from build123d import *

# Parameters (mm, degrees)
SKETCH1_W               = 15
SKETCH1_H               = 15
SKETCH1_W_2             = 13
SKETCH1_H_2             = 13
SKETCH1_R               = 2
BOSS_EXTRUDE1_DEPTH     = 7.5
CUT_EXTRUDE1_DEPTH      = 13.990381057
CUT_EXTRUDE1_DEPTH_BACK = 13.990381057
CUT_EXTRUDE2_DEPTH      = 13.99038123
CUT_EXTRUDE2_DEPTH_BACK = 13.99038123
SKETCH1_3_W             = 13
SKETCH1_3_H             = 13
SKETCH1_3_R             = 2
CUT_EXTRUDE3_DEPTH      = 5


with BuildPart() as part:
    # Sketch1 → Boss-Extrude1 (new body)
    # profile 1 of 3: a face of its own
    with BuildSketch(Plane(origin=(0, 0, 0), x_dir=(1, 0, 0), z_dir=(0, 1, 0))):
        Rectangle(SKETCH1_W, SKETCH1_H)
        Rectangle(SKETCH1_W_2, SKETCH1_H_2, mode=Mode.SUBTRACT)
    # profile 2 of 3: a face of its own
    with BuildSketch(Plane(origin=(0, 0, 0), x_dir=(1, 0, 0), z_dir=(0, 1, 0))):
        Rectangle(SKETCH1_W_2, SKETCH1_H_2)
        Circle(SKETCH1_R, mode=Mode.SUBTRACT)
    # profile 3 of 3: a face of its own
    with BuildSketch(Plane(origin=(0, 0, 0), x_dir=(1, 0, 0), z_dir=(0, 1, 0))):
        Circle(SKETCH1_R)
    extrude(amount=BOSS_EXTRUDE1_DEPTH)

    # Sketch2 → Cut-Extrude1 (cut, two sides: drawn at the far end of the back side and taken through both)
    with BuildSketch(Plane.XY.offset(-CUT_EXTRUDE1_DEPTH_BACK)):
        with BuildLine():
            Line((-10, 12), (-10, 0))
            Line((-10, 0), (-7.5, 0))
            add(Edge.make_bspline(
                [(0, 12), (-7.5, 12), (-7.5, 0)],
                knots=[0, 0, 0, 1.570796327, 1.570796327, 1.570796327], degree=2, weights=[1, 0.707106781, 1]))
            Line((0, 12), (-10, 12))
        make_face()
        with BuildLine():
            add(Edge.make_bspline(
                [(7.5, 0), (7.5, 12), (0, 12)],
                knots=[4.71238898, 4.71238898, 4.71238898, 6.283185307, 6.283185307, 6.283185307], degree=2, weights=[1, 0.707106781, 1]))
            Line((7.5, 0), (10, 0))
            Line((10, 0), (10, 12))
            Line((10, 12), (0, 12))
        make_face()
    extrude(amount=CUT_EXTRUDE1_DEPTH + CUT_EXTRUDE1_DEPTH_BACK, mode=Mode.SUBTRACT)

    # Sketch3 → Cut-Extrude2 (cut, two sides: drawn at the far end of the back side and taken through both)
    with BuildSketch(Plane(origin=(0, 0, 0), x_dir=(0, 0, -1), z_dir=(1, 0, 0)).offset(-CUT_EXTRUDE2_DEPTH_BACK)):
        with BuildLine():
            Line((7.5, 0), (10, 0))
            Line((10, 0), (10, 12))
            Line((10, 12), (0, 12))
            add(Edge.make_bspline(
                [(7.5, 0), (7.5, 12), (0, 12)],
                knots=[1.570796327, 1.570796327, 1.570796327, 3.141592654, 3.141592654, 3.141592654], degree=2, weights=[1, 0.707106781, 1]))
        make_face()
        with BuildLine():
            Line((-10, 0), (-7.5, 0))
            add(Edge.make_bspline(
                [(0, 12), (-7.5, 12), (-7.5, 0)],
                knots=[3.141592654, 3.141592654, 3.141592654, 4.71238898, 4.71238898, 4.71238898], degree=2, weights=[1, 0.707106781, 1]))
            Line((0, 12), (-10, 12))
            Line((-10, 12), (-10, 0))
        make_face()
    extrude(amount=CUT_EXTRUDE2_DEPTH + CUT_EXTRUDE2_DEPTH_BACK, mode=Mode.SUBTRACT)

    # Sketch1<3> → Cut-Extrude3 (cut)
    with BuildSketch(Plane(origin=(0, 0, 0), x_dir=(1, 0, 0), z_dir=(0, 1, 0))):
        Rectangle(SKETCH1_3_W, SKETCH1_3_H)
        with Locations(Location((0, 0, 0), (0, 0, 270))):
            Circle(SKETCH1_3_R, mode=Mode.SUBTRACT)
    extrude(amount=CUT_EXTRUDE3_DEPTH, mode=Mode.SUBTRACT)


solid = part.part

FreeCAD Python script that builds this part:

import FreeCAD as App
import Part
import Sketcher

V = App.Vector
Q = App.Units.Quantity


def add_polygon(sketch, points):
    """Adds a closed chain of lines whose ends are joined by coincident constraints."""
    first, n = sketch.GeometryCount, len(points)
    for a, b in zip(points, points[1:] + points[:1]):
        sketch.addGeometry(Part.LineSegment(App.Vector(*a, 0), App.Vector(*b, 0)), False)
    for i in range(n):
        sketch.addConstraint(Sketcher.Constraint("Coincident", first + i, 2, first + (i + 1) % n, 1))

doc = App.newDocument("Part")
body = doc.addObject("PartDesign::Body", "Body")

# Sketch on XZ plane
sketch1 = body.newObject("Sketcher::SketchObject", "Sketch")
sketch1.AttachmentSupport = (doc.getObject("XZ_Plane"), [""])
sketch1.MapMode = "FlatFace"
add_polygon(sketch1, [(-8, -8), (-8, 8), (8, 8), (8, -8)])  # lines 0-3
sketch1.addConstraint(Sketcher.Constraint("Vertical", 0))
sketch1.addConstraint(Sketcher.Constraint("Horizontal", 1))
sketch1.addConstraint(Sketcher.Constraint("Vertical", 2))
sketch1.addConstraint(Sketcher.Constraint("Horizontal", 3))
sketch1.addConstraint(Sketcher.Constraint("Symmetric", 0, 2, 2, 2, -1, 1))
sketch1.addConstraint(Sketcher.Constraint("Equal", 3, 0))
sketch1.addConstraint(Sketcher.Constraint("DistanceX", 1, 1, 1, 2, Q("15 mm")))
pad1 = body.newObject("PartDesign::Pad", "Pad")
pad1.Profile = sketch1
pad1.Length = 7.5
pad1.Reversed = True

# Sketch on XY plane
sketch2 = body.newObject("Sketcher::SketchObject", "Sketch001")
sketch2.AttachmentSupport = (doc.getObject("XY_Plane"), [""])
sketch2.MapMode = "FlatFace"
sketch2.addGeometry(Part.LineSegment(V(-10, 12, 0), V(-10, 0, 0)), False)
sketch2.addGeometry(Part.LineSegment(V(-10, 0, 0), V(-7.5, 0, 0)), False)
sketch2.addGeometry(Part.BSplineCurve([V(0, 12, 0), V(-7.5, 12, 0), V(-7.5, 0, 0)], [3, 3], [0, 1.570796327], False, 2, [1, 0.707106781, 1], False), False)
sketch2.addGeometry(Part.LineSegment(V(0, 12, 0), V(-10, 12, 0)), False)
sketch2.addGeometry(Part.BSplineCurve([V(7.5, 0, 0), V(7.5, 12, 0), V(0, 12, 0)], [3, 3], [4.71238898, 6.283185307], False, 2, [1, 0.707106781, 1], False), False)
sketch2.addGeometry(Part.LineSegment(V(7.5, 0, 0), V(10, 0, 0)), False)
sketch2.addGeometry(Part.LineSegment(V(10, 0, 0), V(10, 12, 0)), False)
sketch2.addGeometry(Part.LineSegment(V(10, 12, 0), V(0, 12, 0)), False)
sketch2.addConstraint(Sketcher.Constraint("Block", 2))
sketch2.addConstraint(Sketcher.Constraint("Block", 4))
sketch2.addConstraint(Sketcher.Constraint("Coincident", 0, 2, 1, 1))
sketch2.addConstraint(Sketcher.Constraint("Coincident", 1, 2, 2, 2))
sketch2.addConstraint(Sketcher.Constraint("Coincident", 2, 1, 3, 1))
sketch2.addConstraint(Sketcher.Constraint("Coincident", 3, 2, 0, 1))
sketch2.addConstraint(Sketcher.Constraint("Coincident", 4, 1, 5, 1))
sketch2.addConstraint(Sketcher.Constraint("Coincident", 5, 2, 6, 1))
sketch2.addConstraint(Sketcher.Constraint("Coincident", 6, 2, 7, 1))
sketch2.addConstraint(Sketcher.Constraint("Coincident", 7, 2, 4, 2))
sketch2.addConstraint(Sketcher.Constraint("Vertical", 0))
sketch2.addConstraint(Sketcher.Constraint("Horizontal", 1))
sketch2.addConstraint(Sketcher.Constraint("Horizontal", 3))
sketch2.addConstraint(Sketcher.Constraint("Horizontal", 5))
sketch2.addConstraint(Sketcher.Constraint("Vertical", 6))
sketch2.addConstraint(Sketcher.Constraint("Horizontal", 7))
sketch2.addConstraint(Sketcher.Constraint("Equal", 1, 5))
sketch2.addConstraint(Sketcher.Constraint("DistanceX", 3, 2, 3, 1, Q("10 mm")))
pocket1 = body.newObject("PartDesign::Pocket", "Pocket")
pocket1.Profile = sketch2
pocket1.Type = "ThroughAll"
pocket1.Midplane = True

# Sketch on YZ plane
sketch3 = body.newObject("Sketcher::SketchObject", "Sketch002")
sketch3.AttachmentSupport = (doc.getObject("YZ_Plane"), [""])
sketch3.MapMode = "FlatFace"
sketch3.addGeometry(Part.LineSegment(V(0, -7.5, 0), V(0, -10, 0)), False)
sketch3.addGeometry(Part.LineSegment(V(0, -10, 0), V(12, -10, 0)), False)
sketch3.addGeometry(Part.LineSegment(V(12, -10, 0), V(12, 0, 0)), False)
sketch3.addGeometry(Part.BSplineCurve([V(0, -7.5, 0), V(12, -7.5, 0), V(12, 0, 0)], [3, 3], [1.570796327, 3.141592654], False, 2, [1, 0.707106781, 1], False), False)
sketch3.addGeometry(Part.LineSegment(V(0, 10, 0), V(0, 7.5, 0)), False)
sketch3.addGeometry(Part.BSplineCurve([V(12, 0, 0), V(12, 7.5, 0), V(0, 7.5, 0)], [3, 3], [3.141592654, 4.71238898], False, 2, [1, 0.707106781, 1], False), False)
sketch3.addGeometry(Part.LineSegment(V(12, 0, 0), V(12, 10, 0)), False)
sketch3.addGeometry(Part.LineSegment(V(12, 10, 0), V(0, 10, 0)), False)
sketch3.addConstraint(Sketcher.Constraint("Block", 3))
sketch3.addConstraint(Sketcher.Constraint("Block", 5))
sketch3.addConstraint(Sketcher.Constraint("Coincident", 0, 2, 1, 1))
sketch3.addConstraint(Sketcher.Constraint("Coincident", 1, 2, 2, 1))
sketch3.addConstraint(Sketcher.Constraint("Coincident", 2, 2, 3, 2))
sketch3.addConstraint(Sketcher.Constraint("Coincident", 3, 1, 0, 1))
sketch3.addConstraint(Sketcher.Constraint("Coincident", 4, 2, 5, 2))
sketch3.addConstraint(Sketcher.Constraint("Coincident", 5, 1, 6, 1))
sketch3.addConstraint(Sketcher.Constraint("Coincident", 6, 2, 7, 1))
sketch3.addConstraint(Sketcher.Constraint("Coincident", 7, 2, 4, 1))
sketch3.addConstraint(Sketcher.Constraint("Vertical", 0))
sketch3.addConstraint(Sketcher.Constraint("Horizontal", 1))
sketch3.addConstraint(Sketcher.Constraint("Vertical", 2))
sketch3.addConstraint(Sketcher.Constraint("Vertical", 4))
sketch3.addConstraint(Sketcher.Constraint("Vertical", 6))
sketch3.addConstraint(Sketcher.Constraint("Horizontal", 7))
sketch3.addConstraint(Sketcher.Constraint("Equal", 0, 4))
sketch3.addConstraint(Sketcher.Constraint("DistanceY", 2, 1, 2, 2, Q("10 mm")))
pocket2 = body.newObject("PartDesign::Pocket", "Pocket001")
pocket2.Profile = sketch3
pocket2.Type = "ThroughAll"
pocket2.Midplane = True

# Sketch on XZ plane
sketch4 = body.newObject("Sketcher::SketchObject", "Sketch003")
sketch4.AttachmentSupport = (doc.getObject("XZ_Plane"), [""])
sketch4.MapMode = "FlatFace"
add_polygon(sketch4, [(-6.5, -6.5), (-6.5, 6.5), (6.5, 6.5), (6.5, -6.5)])  # lines 0-3
sketch4.addGeometry(Part.Circle(V(0, 0, 0), V(0, 0, 1), 2), False)  # 4
sketch4.addConstraint(Sketcher.Constraint("Vertical", 0))
sketch4.addConstraint(Sketcher.Constraint("Horizontal", 1))
sketch4.addConstraint(Sketcher.Constraint("Vertical", 2))
sketch4.addConstraint(Sketcher.Constraint("Horizontal", 3))
sketch4.addConstraint(Sketcher.Constraint("Coincident", 4, 3, -1, 1))
sketch4.addConstraint(Sketcher.Constraint("Symmetric", 0, 2, 2, 2, -1, 1))
sketch4.addConstraint(Sketcher.Constraint("Equal", 3, 0))
sketch4.addConstraint(Sketcher.Constraint("Diameter", 4, Q("4 mm")))
sketch4.addConstraint(Sketcher.Constraint("DistanceX", 1, 1, 1, 2, Q("13 mm")))
pocket3 = body.newObject("PartDesign::Pocket", "Pocket002")
pocket3.Profile = sketch4
pocket3.Length = 5

doc.recompute()
